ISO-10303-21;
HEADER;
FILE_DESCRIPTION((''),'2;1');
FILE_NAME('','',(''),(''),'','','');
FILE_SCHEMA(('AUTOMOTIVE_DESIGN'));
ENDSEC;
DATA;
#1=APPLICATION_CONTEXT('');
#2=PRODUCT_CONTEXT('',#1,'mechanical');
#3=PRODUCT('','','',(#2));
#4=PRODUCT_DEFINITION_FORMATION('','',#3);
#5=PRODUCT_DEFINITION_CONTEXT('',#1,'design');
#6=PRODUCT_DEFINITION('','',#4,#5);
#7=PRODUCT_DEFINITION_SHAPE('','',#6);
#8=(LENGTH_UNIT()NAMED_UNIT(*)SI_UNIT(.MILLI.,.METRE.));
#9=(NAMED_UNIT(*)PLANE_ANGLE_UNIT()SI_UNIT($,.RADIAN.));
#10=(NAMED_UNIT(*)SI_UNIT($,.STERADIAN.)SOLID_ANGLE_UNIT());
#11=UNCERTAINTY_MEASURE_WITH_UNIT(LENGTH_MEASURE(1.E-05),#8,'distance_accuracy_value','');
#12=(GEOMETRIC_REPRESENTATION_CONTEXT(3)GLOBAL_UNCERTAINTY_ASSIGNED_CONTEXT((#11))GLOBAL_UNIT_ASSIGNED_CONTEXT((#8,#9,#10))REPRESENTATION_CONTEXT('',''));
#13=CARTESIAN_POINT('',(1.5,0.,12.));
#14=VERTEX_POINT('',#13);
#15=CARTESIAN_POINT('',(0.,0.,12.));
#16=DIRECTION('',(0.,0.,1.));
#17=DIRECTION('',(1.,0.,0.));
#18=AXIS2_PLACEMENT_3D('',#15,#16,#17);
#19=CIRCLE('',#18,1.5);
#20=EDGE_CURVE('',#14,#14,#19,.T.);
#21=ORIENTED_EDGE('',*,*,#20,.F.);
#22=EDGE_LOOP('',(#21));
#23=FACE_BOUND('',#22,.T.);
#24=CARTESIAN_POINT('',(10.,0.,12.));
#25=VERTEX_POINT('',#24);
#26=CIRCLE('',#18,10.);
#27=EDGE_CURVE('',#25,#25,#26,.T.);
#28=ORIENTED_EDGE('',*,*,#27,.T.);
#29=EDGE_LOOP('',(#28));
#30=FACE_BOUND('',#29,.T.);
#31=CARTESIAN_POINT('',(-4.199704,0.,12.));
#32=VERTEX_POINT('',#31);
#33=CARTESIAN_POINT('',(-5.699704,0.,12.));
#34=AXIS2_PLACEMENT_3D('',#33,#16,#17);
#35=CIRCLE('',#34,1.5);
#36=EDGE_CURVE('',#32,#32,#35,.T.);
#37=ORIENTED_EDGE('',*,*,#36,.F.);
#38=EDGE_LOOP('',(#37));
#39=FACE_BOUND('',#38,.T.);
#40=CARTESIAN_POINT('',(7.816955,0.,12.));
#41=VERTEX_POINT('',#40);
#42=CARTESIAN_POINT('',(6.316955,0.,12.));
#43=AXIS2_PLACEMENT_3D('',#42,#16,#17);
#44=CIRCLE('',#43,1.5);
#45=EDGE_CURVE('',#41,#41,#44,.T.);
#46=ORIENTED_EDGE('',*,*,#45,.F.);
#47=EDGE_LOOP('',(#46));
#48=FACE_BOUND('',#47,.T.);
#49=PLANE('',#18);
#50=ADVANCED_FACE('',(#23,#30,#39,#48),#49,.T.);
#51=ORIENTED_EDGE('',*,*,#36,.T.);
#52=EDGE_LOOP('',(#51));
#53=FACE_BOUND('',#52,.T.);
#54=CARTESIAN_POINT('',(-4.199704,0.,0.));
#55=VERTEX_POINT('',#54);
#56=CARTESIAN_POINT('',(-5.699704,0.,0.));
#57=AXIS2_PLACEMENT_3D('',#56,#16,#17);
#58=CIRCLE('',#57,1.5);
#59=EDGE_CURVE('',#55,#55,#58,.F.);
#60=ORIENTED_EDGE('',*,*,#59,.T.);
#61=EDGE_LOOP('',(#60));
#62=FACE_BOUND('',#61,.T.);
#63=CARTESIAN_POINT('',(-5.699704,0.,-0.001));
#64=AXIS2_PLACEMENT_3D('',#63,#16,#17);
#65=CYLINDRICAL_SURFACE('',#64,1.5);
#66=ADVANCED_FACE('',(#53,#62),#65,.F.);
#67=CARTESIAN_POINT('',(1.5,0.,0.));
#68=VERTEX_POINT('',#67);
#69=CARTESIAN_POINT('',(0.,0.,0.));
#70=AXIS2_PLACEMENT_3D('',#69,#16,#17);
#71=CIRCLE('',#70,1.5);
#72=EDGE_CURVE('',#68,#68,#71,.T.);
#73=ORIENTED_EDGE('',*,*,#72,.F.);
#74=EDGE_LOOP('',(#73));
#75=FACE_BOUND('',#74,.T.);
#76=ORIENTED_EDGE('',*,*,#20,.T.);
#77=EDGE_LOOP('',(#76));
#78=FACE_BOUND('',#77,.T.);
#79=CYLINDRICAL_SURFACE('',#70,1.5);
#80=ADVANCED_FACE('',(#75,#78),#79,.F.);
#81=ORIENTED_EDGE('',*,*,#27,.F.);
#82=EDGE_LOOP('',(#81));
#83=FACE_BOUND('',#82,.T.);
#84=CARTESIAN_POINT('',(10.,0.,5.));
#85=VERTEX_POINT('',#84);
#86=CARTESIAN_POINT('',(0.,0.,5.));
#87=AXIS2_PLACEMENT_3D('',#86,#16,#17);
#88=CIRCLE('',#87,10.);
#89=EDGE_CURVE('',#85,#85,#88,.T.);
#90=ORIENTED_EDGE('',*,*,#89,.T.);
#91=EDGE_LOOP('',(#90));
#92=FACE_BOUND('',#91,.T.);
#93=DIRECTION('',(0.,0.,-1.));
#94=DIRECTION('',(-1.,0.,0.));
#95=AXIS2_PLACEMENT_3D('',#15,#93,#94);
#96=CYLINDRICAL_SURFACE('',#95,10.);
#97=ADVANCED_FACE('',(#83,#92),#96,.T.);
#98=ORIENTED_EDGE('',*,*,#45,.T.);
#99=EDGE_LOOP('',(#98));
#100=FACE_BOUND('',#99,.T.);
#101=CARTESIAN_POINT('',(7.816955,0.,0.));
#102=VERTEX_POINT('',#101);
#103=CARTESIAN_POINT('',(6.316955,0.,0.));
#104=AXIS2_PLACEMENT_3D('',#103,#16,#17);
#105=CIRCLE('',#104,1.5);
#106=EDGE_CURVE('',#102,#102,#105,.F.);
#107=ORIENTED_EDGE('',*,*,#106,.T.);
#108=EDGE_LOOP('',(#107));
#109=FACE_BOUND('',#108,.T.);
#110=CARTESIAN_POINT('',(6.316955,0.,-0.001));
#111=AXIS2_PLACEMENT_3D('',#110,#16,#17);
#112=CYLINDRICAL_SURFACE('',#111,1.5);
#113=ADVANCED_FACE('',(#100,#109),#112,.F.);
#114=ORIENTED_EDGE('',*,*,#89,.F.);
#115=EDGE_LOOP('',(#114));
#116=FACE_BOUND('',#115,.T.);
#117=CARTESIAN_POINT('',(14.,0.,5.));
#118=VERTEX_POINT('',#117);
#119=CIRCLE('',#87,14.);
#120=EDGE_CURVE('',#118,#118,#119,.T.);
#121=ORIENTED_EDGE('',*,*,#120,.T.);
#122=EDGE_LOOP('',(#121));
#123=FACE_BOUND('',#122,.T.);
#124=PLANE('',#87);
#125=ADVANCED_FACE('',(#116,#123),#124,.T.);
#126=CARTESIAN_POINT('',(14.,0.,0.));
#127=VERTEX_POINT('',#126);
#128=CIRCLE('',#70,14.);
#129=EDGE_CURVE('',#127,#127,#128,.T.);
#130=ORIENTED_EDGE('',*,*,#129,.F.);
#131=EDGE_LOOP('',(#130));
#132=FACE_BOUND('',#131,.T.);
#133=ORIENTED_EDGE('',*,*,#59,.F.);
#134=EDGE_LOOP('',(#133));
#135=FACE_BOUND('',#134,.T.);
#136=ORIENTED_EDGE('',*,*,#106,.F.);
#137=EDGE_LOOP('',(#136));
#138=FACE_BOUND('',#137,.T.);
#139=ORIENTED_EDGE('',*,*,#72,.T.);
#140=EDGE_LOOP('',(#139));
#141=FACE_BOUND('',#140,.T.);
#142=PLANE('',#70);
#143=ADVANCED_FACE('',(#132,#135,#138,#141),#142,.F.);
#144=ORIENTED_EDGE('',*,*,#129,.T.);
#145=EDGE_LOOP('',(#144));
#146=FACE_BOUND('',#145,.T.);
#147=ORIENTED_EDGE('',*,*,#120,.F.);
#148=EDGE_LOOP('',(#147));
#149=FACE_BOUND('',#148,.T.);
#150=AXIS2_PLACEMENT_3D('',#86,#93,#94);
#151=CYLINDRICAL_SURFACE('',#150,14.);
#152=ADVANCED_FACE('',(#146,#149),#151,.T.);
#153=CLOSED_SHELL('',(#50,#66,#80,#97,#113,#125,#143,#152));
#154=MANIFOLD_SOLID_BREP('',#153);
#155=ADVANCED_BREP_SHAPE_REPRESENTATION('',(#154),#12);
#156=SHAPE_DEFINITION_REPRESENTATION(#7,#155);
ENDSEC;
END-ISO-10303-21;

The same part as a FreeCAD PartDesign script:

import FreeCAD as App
import Part
import Sketcher
Q = App.Units.Quantity

doc = App.newDocument("Part")
body = doc.addObject("PartDesign::Body", "Body")

# Sketch on XY plane
sketch1 = doc.addObject("Sketcher::SketchObject", "Sketch")
body.addObject(sketch1)
sketch1.AttachmentSupport = (doc.XY_Plane, [""])
sketch1.MapMode = "FlatFace"
sketch1.addGeometry(Part.Circle(App.Vector(0, 0, 0), App.Vector(0, 0, 1), 14), False)
sketch1.addConstraint([
    Sketcher.Constraint("Coincident", 0, 3, -1, 1),
    Sketcher.Constraint("Diameter", 0, Q("28 mm")),
])
pad1 = doc.addObject("PartDesign::Pad", "Pad")
body.addObject(pad1)
pad1.Profile = sketch1
pad1.Length = 5

# Sketch on XY plane
sketch2 = doc.addObject("Sketcher::SketchObject", "Sketch001")
body.addObject(sketch2)
sketch2.AttachmentSupport = (doc.XY_Plane, [""])
sketch2.MapMode = "FlatFace"
sketch2.AttachmentOffset = App.Placement(App.Vector(0, 0, 5), App.Rotation())
sketch2.addGeometry(Part.Circle(App.Vector(0, 0, 0), App.Vector(0, 0, 1), 10), False)
sketch2.addConstraint([
    Sketcher.Constraint("Coincident", 0, 3, -1, 1),
    Sketcher.Constraint("Diameter", 0, Q("20 mm")),
])
pad2 = doc.addObject("PartDesign::Pad", "Pad001")
body.addObject(pad2)
pad2.Profile = sketch2
pad2.Length = 7

# Sketch on XY plane
sketch3 = doc.addObject("Sketcher::SketchObject", "Sketch002")
body.addObject(sketch3)
sketch3.AttachmentSupport = (doc.XY_Plane, [""])
sketch3.MapMode = "FlatFace"
sketch3.AttachmentOffset = App.Placement(App.Vector(0, 0, 12), App.Rotation())
sketch3.addGeometry(Part.Circle(App.Vector(0, 0, 0), App.Vector(0, 0, 1), 1.5), False)
sketch3.addConstraint([
    Sketcher.Constraint("Coincident", 0, 3, -1, 1),
    Sketcher.Constraint("Diameter", 0, Q("3 mm")),
])
pocket1 = doc.addObject("PartDesign::Pocket", "Pocket")
body.addObject(pocket1)
pocket1.Profile = sketch3
pocket1.Type = "ThroughAll"

# Sketch on XY plane
sketch4 = doc.addObject("Sketcher::SketchObject", "Sketch003")
body.addObject(sketch4)
sketch4.AttachmentSupport = (doc.XY_Plane, [""])
sketch4.MapMode = "FlatFace"
sketch4.AttachmentOffset = App.Placement(App.Vector(0, 0, 12), App.Rotation())
sketch4.addGeometry(Part.Circle(App.Vector(-5.7, 0, 0), App.Vector(0, 0, 1), 1.5), False)
sketch4.addConstraint([
    Sketcher.Constraint("PointOnObject", 0, 3, -1),
    Sketcher.Constraint("Diameter", 0, Q("3 mm")),
    Sketcher.Constraint("DistanceX", 0, 3, -1, 1, Q("5.699704 mm")),
])
pocket2 = doc.addObject("PartDesign::Pocket", "Pocket001")
body.addObject(pocket2)
pocket2.Profile = sketch4
pocket2.Type = "UpToFirst"

# Sketch on XY plane
sketch5 = doc.addObject("Sketcher::SketchObject", "Sketch004")
body.addObject(sketch5)
sketch5.AttachmentSupport = (doc.XY_Plane, [""])
sketch5.MapMode = "FlatFace"
sketch5.AttachmentOffset = App.Placement(App.Vector(0, 0, 12), App.Rotation())
sketch5.addGeometry(Part.Circle(App.Vector(6.3, 0, 0), App.Vector(0, 0, 1), 1.5), False)
sketch5.addConstraint([
    Sketcher.Constraint("PointOnObject", 0, 3, -1),
    Sketcher.Constraint("Diameter", 0, Q("3 mm")),
    Sketcher.Constraint("DistanceX", -1, 1, 0, 3, Q("6.316955 mm")),
])
pocket3 = doc.addObject("PartDesign::Pocket", "Pocket002")
body.addObject(pocket3)
pocket3.Profile = sketch5
pocket3.Type = "UpToFirst"

doc.recompute()
